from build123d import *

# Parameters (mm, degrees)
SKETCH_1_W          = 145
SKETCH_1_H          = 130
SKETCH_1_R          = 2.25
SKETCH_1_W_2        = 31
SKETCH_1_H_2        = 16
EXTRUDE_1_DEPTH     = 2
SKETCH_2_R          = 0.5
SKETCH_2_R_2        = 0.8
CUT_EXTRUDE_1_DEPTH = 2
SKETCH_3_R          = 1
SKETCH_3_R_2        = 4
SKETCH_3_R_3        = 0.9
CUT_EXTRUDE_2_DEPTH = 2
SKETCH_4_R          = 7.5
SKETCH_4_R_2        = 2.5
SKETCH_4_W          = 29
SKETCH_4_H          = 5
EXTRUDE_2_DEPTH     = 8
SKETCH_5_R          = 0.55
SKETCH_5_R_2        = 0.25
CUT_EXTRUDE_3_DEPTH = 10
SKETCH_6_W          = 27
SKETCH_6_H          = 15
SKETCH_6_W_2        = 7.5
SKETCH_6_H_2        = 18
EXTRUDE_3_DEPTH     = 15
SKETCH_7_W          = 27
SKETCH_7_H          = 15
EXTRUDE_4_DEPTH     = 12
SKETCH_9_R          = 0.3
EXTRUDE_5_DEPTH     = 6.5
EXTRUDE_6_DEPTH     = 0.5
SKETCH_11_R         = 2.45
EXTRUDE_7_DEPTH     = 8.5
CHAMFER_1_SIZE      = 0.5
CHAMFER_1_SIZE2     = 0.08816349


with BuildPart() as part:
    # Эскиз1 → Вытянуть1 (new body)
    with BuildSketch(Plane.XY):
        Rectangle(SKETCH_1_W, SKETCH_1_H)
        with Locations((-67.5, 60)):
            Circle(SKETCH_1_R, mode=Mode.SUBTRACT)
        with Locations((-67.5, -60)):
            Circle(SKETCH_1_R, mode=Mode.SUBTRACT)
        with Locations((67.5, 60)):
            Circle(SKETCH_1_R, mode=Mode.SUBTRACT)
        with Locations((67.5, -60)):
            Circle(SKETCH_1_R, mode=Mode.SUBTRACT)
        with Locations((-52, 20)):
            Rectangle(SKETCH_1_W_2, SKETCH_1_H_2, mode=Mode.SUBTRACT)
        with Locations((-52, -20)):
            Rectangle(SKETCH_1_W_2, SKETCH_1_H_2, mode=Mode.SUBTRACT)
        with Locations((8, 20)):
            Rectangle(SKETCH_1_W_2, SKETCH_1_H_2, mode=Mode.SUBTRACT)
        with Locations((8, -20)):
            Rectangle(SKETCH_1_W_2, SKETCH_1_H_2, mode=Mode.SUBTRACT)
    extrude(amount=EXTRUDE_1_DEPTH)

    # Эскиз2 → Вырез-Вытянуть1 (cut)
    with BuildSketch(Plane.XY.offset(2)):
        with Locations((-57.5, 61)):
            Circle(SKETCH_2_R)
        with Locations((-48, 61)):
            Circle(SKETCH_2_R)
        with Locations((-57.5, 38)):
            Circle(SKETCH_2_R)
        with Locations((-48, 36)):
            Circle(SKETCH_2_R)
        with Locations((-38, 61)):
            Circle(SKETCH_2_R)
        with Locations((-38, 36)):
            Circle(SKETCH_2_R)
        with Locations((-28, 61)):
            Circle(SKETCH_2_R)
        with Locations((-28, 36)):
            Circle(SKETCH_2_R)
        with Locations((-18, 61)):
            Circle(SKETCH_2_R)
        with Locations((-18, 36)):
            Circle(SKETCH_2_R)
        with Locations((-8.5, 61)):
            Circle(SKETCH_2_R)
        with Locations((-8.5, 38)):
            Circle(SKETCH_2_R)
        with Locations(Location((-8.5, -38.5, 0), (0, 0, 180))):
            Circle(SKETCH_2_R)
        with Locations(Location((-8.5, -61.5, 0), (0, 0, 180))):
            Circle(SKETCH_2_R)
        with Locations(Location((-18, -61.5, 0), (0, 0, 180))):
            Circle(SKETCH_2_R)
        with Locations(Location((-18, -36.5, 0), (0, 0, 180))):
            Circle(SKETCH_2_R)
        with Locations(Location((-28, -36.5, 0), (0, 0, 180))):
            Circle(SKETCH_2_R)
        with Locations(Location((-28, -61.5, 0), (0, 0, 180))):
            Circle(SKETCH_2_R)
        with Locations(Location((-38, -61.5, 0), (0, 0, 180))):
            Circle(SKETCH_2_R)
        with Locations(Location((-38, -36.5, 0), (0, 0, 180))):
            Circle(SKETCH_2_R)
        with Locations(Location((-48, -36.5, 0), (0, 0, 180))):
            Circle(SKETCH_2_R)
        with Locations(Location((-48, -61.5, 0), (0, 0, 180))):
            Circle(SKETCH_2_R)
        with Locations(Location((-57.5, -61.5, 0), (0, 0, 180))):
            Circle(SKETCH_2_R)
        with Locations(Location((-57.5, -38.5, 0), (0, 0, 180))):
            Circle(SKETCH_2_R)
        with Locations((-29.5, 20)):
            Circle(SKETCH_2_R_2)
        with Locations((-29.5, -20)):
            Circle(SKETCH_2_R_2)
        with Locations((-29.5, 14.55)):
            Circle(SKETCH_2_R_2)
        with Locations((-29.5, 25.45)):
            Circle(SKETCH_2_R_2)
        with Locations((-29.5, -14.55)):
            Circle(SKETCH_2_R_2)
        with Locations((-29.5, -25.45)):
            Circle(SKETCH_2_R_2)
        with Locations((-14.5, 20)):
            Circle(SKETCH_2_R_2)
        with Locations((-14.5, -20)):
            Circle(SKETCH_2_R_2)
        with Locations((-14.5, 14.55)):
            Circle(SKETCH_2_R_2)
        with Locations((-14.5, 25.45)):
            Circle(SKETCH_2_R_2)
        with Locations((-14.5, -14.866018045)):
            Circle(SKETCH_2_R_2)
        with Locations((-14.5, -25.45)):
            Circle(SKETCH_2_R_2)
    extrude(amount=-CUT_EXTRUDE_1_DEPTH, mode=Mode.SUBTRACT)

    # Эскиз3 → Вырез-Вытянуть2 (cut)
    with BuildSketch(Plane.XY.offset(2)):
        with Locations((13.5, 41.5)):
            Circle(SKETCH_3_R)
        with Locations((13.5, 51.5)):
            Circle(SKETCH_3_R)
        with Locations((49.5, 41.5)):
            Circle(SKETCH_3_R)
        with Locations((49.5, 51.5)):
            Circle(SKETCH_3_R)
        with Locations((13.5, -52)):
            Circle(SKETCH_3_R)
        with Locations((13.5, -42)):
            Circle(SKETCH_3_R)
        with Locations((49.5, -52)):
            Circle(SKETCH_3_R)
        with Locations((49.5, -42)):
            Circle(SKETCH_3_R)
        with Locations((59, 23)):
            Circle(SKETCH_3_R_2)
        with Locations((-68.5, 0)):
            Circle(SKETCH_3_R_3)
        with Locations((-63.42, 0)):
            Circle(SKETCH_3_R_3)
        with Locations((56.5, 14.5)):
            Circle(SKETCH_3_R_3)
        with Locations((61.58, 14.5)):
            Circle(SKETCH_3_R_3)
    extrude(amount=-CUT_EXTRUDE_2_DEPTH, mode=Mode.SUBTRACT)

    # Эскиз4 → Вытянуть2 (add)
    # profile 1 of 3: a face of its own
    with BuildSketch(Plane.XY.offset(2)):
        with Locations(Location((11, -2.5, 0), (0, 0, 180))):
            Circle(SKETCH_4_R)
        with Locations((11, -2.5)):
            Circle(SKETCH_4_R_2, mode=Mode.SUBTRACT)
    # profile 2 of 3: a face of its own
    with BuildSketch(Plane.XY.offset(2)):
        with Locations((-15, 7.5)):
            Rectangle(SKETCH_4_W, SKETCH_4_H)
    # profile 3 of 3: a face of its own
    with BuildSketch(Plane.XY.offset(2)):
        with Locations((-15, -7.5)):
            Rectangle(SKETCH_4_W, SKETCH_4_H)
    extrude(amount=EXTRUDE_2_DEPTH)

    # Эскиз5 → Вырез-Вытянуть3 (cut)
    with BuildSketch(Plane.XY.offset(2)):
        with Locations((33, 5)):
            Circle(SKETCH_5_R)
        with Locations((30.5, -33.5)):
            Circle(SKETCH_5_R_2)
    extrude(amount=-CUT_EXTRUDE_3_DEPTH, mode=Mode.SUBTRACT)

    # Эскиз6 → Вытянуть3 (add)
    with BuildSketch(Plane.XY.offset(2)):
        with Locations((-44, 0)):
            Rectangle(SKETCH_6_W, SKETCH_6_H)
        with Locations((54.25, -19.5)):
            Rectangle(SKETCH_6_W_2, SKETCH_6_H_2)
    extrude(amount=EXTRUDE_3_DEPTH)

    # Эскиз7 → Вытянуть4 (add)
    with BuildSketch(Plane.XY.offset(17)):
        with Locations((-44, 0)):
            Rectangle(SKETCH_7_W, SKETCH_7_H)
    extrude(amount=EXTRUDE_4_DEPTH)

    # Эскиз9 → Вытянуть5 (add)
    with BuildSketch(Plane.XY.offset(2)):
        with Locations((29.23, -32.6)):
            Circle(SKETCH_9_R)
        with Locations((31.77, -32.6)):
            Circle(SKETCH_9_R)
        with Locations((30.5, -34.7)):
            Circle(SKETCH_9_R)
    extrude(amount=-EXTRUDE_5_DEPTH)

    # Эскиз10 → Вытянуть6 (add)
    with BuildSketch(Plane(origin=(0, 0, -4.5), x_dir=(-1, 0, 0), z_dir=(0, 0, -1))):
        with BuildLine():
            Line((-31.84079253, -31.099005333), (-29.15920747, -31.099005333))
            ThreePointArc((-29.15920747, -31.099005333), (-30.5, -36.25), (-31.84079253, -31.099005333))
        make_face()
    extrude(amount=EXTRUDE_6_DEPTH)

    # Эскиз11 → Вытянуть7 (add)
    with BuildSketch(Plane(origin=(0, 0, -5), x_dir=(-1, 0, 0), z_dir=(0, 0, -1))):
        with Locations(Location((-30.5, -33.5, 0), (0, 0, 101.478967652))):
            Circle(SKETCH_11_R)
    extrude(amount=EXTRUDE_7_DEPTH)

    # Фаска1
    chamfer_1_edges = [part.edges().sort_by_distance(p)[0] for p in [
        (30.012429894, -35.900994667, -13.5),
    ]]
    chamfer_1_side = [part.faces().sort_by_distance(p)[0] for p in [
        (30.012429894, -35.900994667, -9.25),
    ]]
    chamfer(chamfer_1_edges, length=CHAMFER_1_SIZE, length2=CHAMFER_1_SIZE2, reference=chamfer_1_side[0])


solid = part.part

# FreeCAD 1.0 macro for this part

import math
import FreeCAD as App
import Part
import Sketcher
from FreeCAD import Vector
Q = App.Units.Quantity


def edges_at(feature, points):
    """Names of the edges that pass closest to the given points."""
    edges = feature.Shape.Edges
    near = lambda p: min(range(len(edges)), key=lambda i: edges[i].distToShape(Part.Vertex(*p))[0])
    return sorted({f"Edge{near(p) + 1}" for p in points})


def add_polygon(sketch, points):
    """Adds a closed chain of lines whose ends are joined by coincident constraints."""
    first, n = sketch.GeometryCount, len(points)
    for a, b in zip(points, points[1:] + points[:1]):
        sketch.addGeometry(Part.LineSegment(App.Vector(*a, 0), App.Vector(*b, 0)), False)
    for i in range(n):
        sketch.addConstraint(Sketcher.Constraint("Coincident", first + i, 2, first + (i + 1) % n, 1))

doc = App.newDocument("Part")
body = doc.addObject("PartDesign::Body", "Body")

# Sketch on XY plane
sketch1 = doc.addObject("Sketcher::SketchObject", "Sketch")
body.addObject(sketch1)
sketch1.AttachmentSupport = (doc.XY_Plane, [""])
sketch1.MapMode = "FlatFace"
add_polygon(sketch1, [(-72.5, 65), (-72.5, -65), (72.5, -65), (72.5, 65)])  # lines 0-3
sketch1.addGeometry(Part.Circle(Vector(-67.5, -60, 0), Vector(0, 0, 1), 2.2), False)  # 4
add_polygon(sketch1, [(-36.5, -28), (-67.5, -28), (-67.5, -12), (-36.5, -12)])  # lines 5-8
sketch1.addGeometry(Part.Circle(Vector(67.5, -60, 0), Vector(0, 0, 1), 2.2), False)  # 9
add_polygon(sketch1, [(23.5, -28), (-7.5, -28), (-7.5, -12), (23.5, -12)])  # lines 10-13
add_polygon(sketch1, [(-36.5, 12), (-67.5, 12), (-67.5, 28), (-36.5, 28)])  # lines 14-17
sketch1.addGeometry(Part.Circle(Vector(-67.5, 60, 0), Vector(0, 0, 1), 2.2), False)  # 18
add_polygon(sketch1, [(23.5, 12), (-7.5, 12), (-7.5, 28), (23.5, 28)])  # lines 19-22
sketch1.addGeometry(Part.Circle(Vector(67.5, 60, 0), Vector(0, 0, 1), 2.2), False)  # 23
sketch1.addConstraint(Sketcher.Constraint("Vertical", 0))
sketch1.addConstraint(Sketcher.Constraint("Horizontal", 1))
sketch1.addConstraint(Sketcher.Constraint("Vertical", 2))
sketch1.addConstraint(Sketcher.Constraint("Horizontal", 3))
sketch1.addConstraint(Sketcher.Constraint("Horizontal", 5))
sketch1.addConstraint(Sketcher.Constraint("Vertical", 6))
sketch1.addConstraint(Sketcher.Constraint("Horizontal", 7))
sketch1.addConstraint(Sketcher.Constraint("Vertical", 8))
sketch1.addConstraint(Sketcher.Constraint("Horizontal", 10))
sketch1.addConstraint(Sketcher.Constraint("Vertical", 11))
sketch1.addConstraint(Sketcher.Constraint("Horizontal", 12))
sketch1.addConstraint(Sketcher.Constraint("Vertical", 13))
sketch1.addConstraint(Sketcher.Constraint("Horizontal", 14))
sketch1.addConstraint(Sketcher.Constraint("Vertical", 15))
sketch1.addConstraint(Sketcher.Constraint("Horizontal", 16))
sketch1.addConstraint(Sketcher.Constraint("Vertical", 17))
sketch1.addConstraint(Sketcher.Constraint("Horizontal", 19))
sketch1.addConstraint(Sketcher.Constraint("Vertical", 20))
sketch1.addConstraint(Sketcher.Constraint("Horizontal", 21))
sketch1.addConstraint(Sketcher.Constraint("Vertical", 22))
sketch1.addConstraint(Sketcher.Constraint("Equal", 4, 9))
sketch1.addConstraint(Sketcher.Constraint("Equal", 9, 18))
sketch1.addConstraint(Sketcher.Constraint("Equal", 18, 23))
sketch1.addConstraint(Sketcher.Constraint("Symmetric", 9, 3, 18, 3, -1, 1))
sketch1.addConstraint(Sketcher.Constraint("Symmetric", 4, 3, 23, 3, -1, 1))
sketch1.addConstraint(Sketcher.Constraint("Symmetric", 0, 2, 2, 2, -1, 1))
sketch1.addConstraint(Sketcher.Constraint("Symmetric", 4, 3, 9, 3, -2))
sketch1.addConstraint(Sketcher.Constraint("Symmetric", 6, 2, 14, 2, -1))
sketch1.addConstraint(Sketcher.Constraint("Symmetric", 8, 2, 16, 2, -1))
sketch1.addConstraint(Sketcher.Constraint("Symmetric", 11, 2, 19, 2, -1))
sketch1.addConstraint(Sketcher.Constraint("Symmetric", 13, 2, 21, 2, -1))
sketch1.addConstraint(Sketcher.Constraint("Horizontal", 8, 2, 10, 2))
sketch1.addConstraint(Sketcher.Constraint("Horizontal", 7, 2, 11, 2))
sketch1.addConstraint(Sketcher.Constraint("Vertical", 18, 3, 5, 2))
sketch1.addConstraint(Sketcher.Constraint("Equal", 7, 10))
sketch1.addConstraint(Sketcher.Constraint("Diameter", 4, Q("4.5 mm")))
sketch1.addConstraint(Sketcher.Constraint("DistanceX", 1, 1, 1, 2, Q("145 mm")))
sketch1.addConstraint(Sketcher.Constraint("DistanceX", 5, 2, 5, 1, Q("31 mm")))
sketch1.addConstraint(Sketcher.Constraint("DistanceY", 0, 2, 0, 1, Q("130 mm")))
sketch1.addConstraint(Sketcher.Constraint("DistanceY", 6, 1, 6, 2, Q("16 mm")))
sketch1.addConstraint(Sketcher.Constraint("DistanceY", 4, 3, -1, 1, Q("60 mm")))
sketch1.addConstraint(Sketcher.Constraint("DistanceY", 5, 2, -1, 1, Q("28 mm")))
sketch1.addConstraint(Sketcher.Constraint("DistanceX", 4, 3, 9, 3, Q("135 mm")))
sketch1.addConstraint(Sketcher.Constraint("DistanceX", 8, 2, 10, 2, Q("29 mm")))
pad1 = doc.addObject("PartDesign::Pad", "Pad")
body.addObject(pad1)
pad1.Profile = sketch1
pad1.Length = 2

# Sketch on XY plane
sketch2 = doc.addObject("Sketcher::SketchObject", "Sketch001")
body.addObject(sketch2)
sketch2.AttachmentSupport = (doc.XY_Plane, [""])
sketch2.MapMode = "FlatFace"
sketch2.AttachmentOffset = App.Placement(Vector(0, 0, 2), App.Rotation())
sketch2.addGeometry(Part.Circle(Vector(-57.5, 61, 0), Vector(0, 0, 1), 0.5), False)
sketch2.addGeometry(Part.Circle(Vector(-48, 61, 0), Vector(0, 0, 1), 0.5), False)
sketch2.addGeometry(Part.Circle(Vector(-57.5, 38, 0), Vector(0, 0, 1), 0.5), False)
sketch2.addGeometry(Part.Circle(Vector(-48, 36, 0), Vector(0, 0, 1), 0.5), False)
sketch2.addGeometry(Part.Circle(Vector(-38, 61, 0), Vector(0, 0, 1), 0.5), False)
sketch2.addGeometry(Part.Circle(Vector(-38, 36, 0), Vector(0, 0, 1), 0.5), False)
sketch2.addGeometry(Part.Circle(Vector(-28, 61, 0), Vector(0, 0, 1), 0.5), False)
sketch2.addGeometry(Part.Circle(Vector(-28, 36, 0), Vector(0, 0, 1), 0.5), False)
sketch2.addGeometry(Part.Circle(Vector(-18, 61, 0), Vector(0, 0, 1), 0.5), False)
sketch2.addGeometry(Part.Circle(Vector(-18, 36, 0), Vector(0, 0, 1), 0.5), False)
sketch2.addGeometry(Part.Circle(Vector(-8.5, 61, 0), Vector(0, 0, 1), 0.5), False)
sketch2.addGeometry(Part.Circle(Vector(-8.5, 38, 0), Vector(0, 0, 1), 0.5), False)
sketch2.addGeometry(Part.Circle(Vector(-8.5, -38.5, 0), Vector(0, 0, 1), 0.5), False)
sketch2.addGeometry(Part.Circle(Vector(-8.5, -61.5, 0), Vector(0, 0, 1), 0.5), False)
sketch2.addGeometry(Part.Circle(Vector(-18, -61.5, 0), Vector(0, 0, 1), 0.5), False)
sketch2.addGeometry(Part.Circle(Vector(-18, -36.5, 0), Vector(0, 0, 1), 0.5), False)
sketch2.addGeometry(Part.Circle(Vector(-28, -36.5, 0), Vector(0, 0, 1), 0.5), False)
sketch2.addGeometry(Part.Circle(Vector(-28, -61.5, 0), Vector(0, 0, 1), 0.5), False)
sketch2.addGeometry(Part.Circle(Vector(-38, -61.5, 0), Vector(0, 0, 1), 0.5), False)
sketch2.addGeometry(Part.Circle(Vector(-38, -36.5, 0), Vector(0, 0, 1), 0.5), False)
sketch2.addGeometry(Part.Circle(Vector(-48, -36.5, 0), Vector(0, 0, 1), 0.5), False)
sketch2.addGeometry(Part.Circle(Vector(-48, -61.5, 0), Vector(0, 0, 1), 0.5), False)
sketch2.addGeometry(Part.Circle(Vector(-57.5, -61.5, 0), Vector(0, 0, 1), 0.5), False)
sketch2.addGeometry(Part.Circle(Vector(-57.5, -38.5, 0), Vector(0, 0, 1), 0.5), False)
sketch2.addGeometry(Part.Circle(Vector(-29.5, 20, 0), Vector(0, 0, 1), 0.8), False)
sketch2.addGeometry(Part.Circle(Vector(-29.5, -20, 0), Vector(0, 0, 1), 0.8), False)
sketch2.addGeometry(Part.Circle(Vector(-29.5, 14.6, 0), Vector(0, 0, 1), 0.8), False)
sketch2.addGeometry(Part.Circle(Vector(-29.5, 25.4, 0), Vector(0, 0, 1), 0.8), False)
sketch2.addGeometry(Part.Circle(Vector(-29.5, -14.6, 0), Vector(0, 0, 1), 0.8), False)
sketch2.addGeometry(Part.Circle(Vector(-29.5, -25.4, 0), Vector(0, 0, 1), 0.8), False)
sketch2.addGeometry(Part.Circle(Vector(-14.5, 20, 0), Vector(0, 0, 1), 0.8), False)
sketch2.addGeometry(Part.Circle(Vector(-14.5, -20, 0), Vector(0, 0, 1), 0.8), False)
sketch2.addGeometry(Part.Circle(Vector(-14.5, 14.6, 0), Vector(0, 0, 1), 0.8), False)
sketch2.addGeometry(Part.Circle(Vector(-14.5, 25.4, 0), Vector(0, 0, 1), 0.8), False)
sketch2.addGeometry(Part.Circle(Vector(-14.5, -14.9, 0), Vector(0, 0, 1), 0.8), False)
sketch2.addGeometry(Part.Circle(Vector(-14.5, -25.4, 0), Vector(0, 0, 1), 0.8), False)
sketch2.addConstraint(Sketcher.Constraint("Equal", 0, 1))
sketch2.addConstraint(Sketcher.Constraint("Equal", 1, 2))
sketch2.addConstraint(Sketcher.Constraint("Equal", 2, 3))
sketch2.addConstraint(Sketcher.Constraint("Equal", 3, 4))
sketch2.addConstraint(Sketcher.Constraint("Equal", 4, 5))
sketch2.addConstraint(Sketcher.Constraint("Equal", 5, 6))
sketch2.addConstraint(Sketcher.Constraint("Equal", 6, 7))
sketch2.addConstraint(Sketcher.Constraint("Equal", 7, 8))
sketch2.addConstraint(Sketcher.Constraint("Equal", 8, 9))
sketch2.addConstraint(Sketcher.Constraint("Equal", 9, 10))
sketch2.addConstraint(Sketcher.Constraint("Equal", 10, 11))
sketch2.addConstraint(Sketcher.Constraint("Equal", 11, 12))
sketch2.addConstraint(Sketcher.Constraint("Equal", 12, 13))
sketch2.addConstraint(Sketcher.Constraint("Equal", 13, 14))
sketch2.addConstraint(Sketcher.Constraint("Equal", 14, 15))
sketch2.addConstraint(Sketcher.Constraint("Equal", 15, 16))
sketch2.addConstraint(Sketcher.Constraint("Equal", 16, 17))
sketch2.addConstraint(Sketcher.Constraint("Equal", 17, 18))
sketch2.addConstraint(Sketcher.Constraint("Equal", 18, 19))
sketch2.addConstraint(Sketcher.Constraint("Equal", 19, 20))
sketch2.addConstraint(Sketcher.Constraint("Equal", 20, 21))
sketch2.addConstraint(Sketcher.Constraint("Equal", 21, 22))
sketch2.addConstraint(Sketcher.Constraint("Equal", 22, 23))
sketch2.addConstraint(Sketcher.Constraint("Equal", 24, 25))
sketch2.addConstraint(Sketcher.Constraint("Equal", 25, 26))
sketch2.addConstraint(Sketcher.Constraint("Equal", 26, 27))
sketch2.addConstraint(Sketcher.Constraint("Equal", 27, 28))
sketch2.addConstraint(Sketcher.Constraint("Equal", 28, 29))
sketch2.addConstraint(Sketcher.Constraint("Equal", 29, 30))
sketch2.addConstraint(Sketcher.Constraint("Equal", 30, 31))
sketch2.addConstraint(Sketcher.Constraint("Equal", 31, 32))
sketch2.addConstraint(Sketcher.Constraint("Equal", 32, 33))
sketch2.addConstraint(Sketcher.Constraint("Equal", 33, 34))
sketch2.addConstraint(Sketcher.Constraint("Equal", 34, 35))
sketch2.addConstraint(Sketcher.Constraint("Symmetric", 24, 3, 25, 3, -1))
sketch2.addConstraint(Sketcher.Constraint("Symmetric", 26, 3, 28, 3, -1))
sketch2.addConstraint(Sketcher.Constraint("Symmetric", 27, 3, 29, 3, -1))
sketch2.addConstraint(Sketcher.Constraint("Symmetric", 30, 3, 31, 3, -1))
sketch2.addConstraint(Sketcher.Constraint("Symmetric", 33, 3, 35, 3, -1))
sketch2.addConstraint(Sketcher.Constraint("Horizontal", 0, 3, 1, 3))
sketch2.addConstraint(Sketcher.Constraint("Horizontal", 1, 3, 4, 3))
sketch2.addConstraint(Sketcher.Constraint("Horizontal", 3, 3, 5, 3))
sketch2.addConstraint(Sketcher.Constraint("Horizontal", 4, 3, 6, 3))
sketch2.addConstraint(Sketcher.Constraint("Horizontal", 5, 3, 7, 3))
sketch2.addConstraint(Sketcher.Constraint("Horizontal", 6, 3, 8, 3))
sketch2.addConstraint(Sketcher.Constraint("Horizontal", 7, 3, 9, 3))
sketch2.addConstraint(Sketcher.Constraint("Horizontal", 8, 3, 10, 3))
sketch2.addConstraint(Sketcher.Constraint("Horizontal", 2, 3, 11, 3))
sketch2.addConstraint(Sketcher.Constraint("Horizontal", 13, 3, 14, 3))
sketch2.addConstraint(Sketcher.Constraint("Horizontal", 15, 3, 16, 3))
sketch2.addConstraint(Sketcher.Constraint("Horizontal", 14, 3, 17, 3))
sketch2.addConstraint(Sketcher.Constraint("Horizontal", 17, 3, 18, 3))
sketch2.addConstraint(Sketcher.Constraint("Horizontal", 16, 3, 19, 3))
sketch2.addConstraint(Sketcher.Constraint("Horizontal", 19, 3, 20, 3))
sketch2.addConstraint(Sketcher.Constraint("Horizontal", 18, 3, 21, 3))
sketch2.addConstraint(Sketcher.Constraint("Horizontal", 21, 3, 22, 3))
sketch2.addConstraint(Sketcher.Constraint("Horizontal", 12, 3, 23, 3))
sketch2.addConstraint(Sketcher.Constraint("Horizontal", 24, 3, 30, 3))
sketch2.addConstraint(Sketcher.Constraint("Horizontal", 26, 3, 32, 3))
sketch2.addConstraint(Sketcher.Constraint("Horizontal", 27, 3, 33, 3))
sketch2.addConstraint(Sketcher.Constraint("Vertical", 0, 3, 2, 3))
sketch2.addConstraint(Sketcher.Constraint("Vertical", 1, 3, 3, 3))
sketch2.addConstraint(Sketcher.Constraint("Vertical", 4, 3, 5, 3))
sketch2.addConstraint(Sketcher.Constraint("Vertical", 6, 3, 7, 3))
sketch2.addConstraint(Sketcher.Constraint("Vertical", 8, 3, 9, 3))
sketch2.addConstraint(Sketcher.Constraint("Vertical", 10, 3, 11, 3))
sketch2.addConstraint(Sketcher.Constraint("Vertical", 11, 3, 12, 3))
sketch2.addConstraint(Sketcher.Constraint("Vertical", 12, 3, 13, 3))
sketch2.addConstraint(Sketcher.Constraint("Vertical", 9, 3, 14, 3))
sketch2.addConstraint(Sketcher.Constraint("Vertical", 14, 3, 15, 3))
sketch2.addConstraint(Sketcher.Constraint("Vertical", 7, 3, 16, 3))
sketch2.addConstraint(Sketcher.Constraint("Vertical", 16, 3, 17, 3))
sketch2.addConstraint(Sketcher.Constraint("Vertical", 5, 3, 18, 3))
sketch2.addConstraint(Sketcher.Constraint("Vertical", 18, 3, 19, 3))
sketch2.addConstraint(Sketcher.Constraint("Vertical", 3, 3, 20, 3))
sketch2.addConstraint(Sketcher.Constraint("Vertical", 20, 3, 21, 3))
sketch2.addConstraint(Sketcher.Constraint("Vertical", 2, 3, 22, 3))
sketch2.addConstraint(Sketcher.Constraint("Vertical", 22, 3, 23, 3))
sketch2.addConstraint(Sketcher.Constraint("Vertical", 25, 3, 26, 3))
sketch2.addConstraint(Sketcher.Constraint("Vertical", 26, 3, 27, 3))
sketch2.addConstraint(Sketcher.Constraint("Vertical", 31, 3, 32, 3))
sketch2.addConstraint(Sketcher.Constraint("Vertical", 32, 3, 33, 3))
sketch2.addConstraint(Sketcher.Constraint("Vertical", 33, 3, 34, 3))
sketch2.addConstraint(Sketcher.Constraint("Diameter", 0, Q("1 mm")))
sketch2.addConstraint(Sketcher.Constraint("Diameter", 24, Q("1.6 mm")))
sketch2.addConstraint(Sketcher.Constraint("DistanceY", -1, 1, 0, 3, Q("61 mm")))
sketch2.addConstraint(Sketcher.Constraint("DistanceX", 1, 3, -1, 1, Q("48 mm")))
sketch2.addConstraint(Sketcher.Constraint("DistanceY", -1, 1, 2, 3, Q("38 mm")))
sketch2.addConstraint(Sketcher.Constraint("DistanceY", -1, 1, 3, 3, Q("36 mm")))
sketch2.addConstraint(Sketcher.Constraint("DistanceX", 4, 3, -1, 1, Q("38 mm")))
sketch2.addConstraint(Sketcher.Constraint("DistanceX", 6, 3, -1, 1, Q("28 mm")))
sketch2.addConstraint(Sketcher.Constraint("DistanceX", 8, 3, -1, 1, Q("18 mm")))
sketch2.addConstraint(Sketcher.Constraint("DistanceY", -1, 1, 24, 3, Q("20 mm")))
sketch2.addConstraint(Sketcher.Constraint("DistanceY", 13, 3, 12, 3, Q("23 mm")))
sketch2.addConstraint(Sketcher.Constraint("DistanceY", 12, 3, 15, 3, Q("2 mm")))
sketch2.addConstraint(Sketcher.Constraint("DistanceX", 24, 3, 11, 3, Q("21 mm")))
sketch2.addConstraint(Sketcher.Constraint("DistanceX", 24, 3, 30, 3, Q("15 mm")))
sketch2.addConstraint(Sketcher.Constraint("DistanceX", 0, 3, -1, 1, Q("57.5 mm")))
sketch2.addConstraint(Sketcher.Constraint("DistanceX", 10, 3, -1, 1, Q("8.5 mm")))
sketch2.addConstraint(Sketcher.Constraint("DistanceY", 12, 3, -1, 1, Q("38.5 mm")))
sketch2.addConstraint(Sketcher.Constraint("DistanceY", 26, 3, 27, 3, Q("10.9 mm")))
sketch2.addConstraint(Sketcher.Constraint("DistanceY", -1, 1, 26, 3, Q("14.55 mm")))
sketch2.addConstraint(Sketcher.Constraint("DistanceY", 34, 3, -1, 1, Q("14.866018 mm")))
pocket1 = doc.addObject("PartDesign::Pocket", "Pocket")
body.addObject(pocket1)
pocket1.Profile = sketch2
pocket1.Length = 2

# Sketch on XY plane
sketch3 = doc.addObject("Sketcher::SketchObject", "Sketch002")
body.addObject(sketch3)
sketch3.AttachmentSupport = (doc.XY_Plane, [""])
sketch3.MapMode = "FlatFace"
sketch3.AttachmentOffset = App.Placement(Vector(0, 0, 2), App.Rotation())
sketch3.addGeometry(Part.Circle(Vector(13.5, 41.5, 0), Vector(0, 0, 1), 1), False)
sketch3.addGeometry(Part.Circle(Vector(13.5, 51.5, 0), Vector(0, 0, 1), 1), False)
sketch3.addGeometry(Part.Circle(Vector(49.5, 41.5, 0), Vector(0, 0, 1), 1), False)
sketch3.addGeometry(Part.Circle(Vector(49.5, 51.5, 0), Vector(0, 0, 1), 1), False)
sketch3.addGeometry(Part.Circle(Vector(13.5, -52, 0), Vector(0, 0, 1), 1), False)
sketch3.addGeometry(Part.Circle(Vector(13.5, -42, 0), Vector(0, 0, 1), 1), False)
sketch3.addGeometry(Part.Circle(Vector(49.5, -52, 0), Vector(0, 0, 1), 1), False)
sketch3.addGeometry(Part.Circle(Vector(49.5, -42, 0), Vector(0, 0, 1), 1), False)
sketch3.addGeometry(Part.Circle(Vector(59, 23, 0), Vector(0, 0, 1), 4), False)
sketch3.addGeometry(Part.Circle(Vector(-68.5, 0, 0), Vector(0, 0, 1), 0.9), False)
sketch3.addGeometry(Part.Circle(Vector(-63.4, 0, 0), Vector(0, 0, 1), 0.9), False)
sketch3.addGeometry(Part.Circle(Vector(56.5, 14.5, 0), Vector(0, 0, 1), 0.9), False)
sketch3.addGeometry(Part.Circle(Vector(61.6, 14.5, 0), Vector(0, 0, 1), 0.9), False)
sketch3.addConstraint(Sketcher.Constraint("Equal", 0, 1))
sketch3.addConstraint(Sketcher.Constraint("Equal", 1, 2))
sketch3.addConstraint(Sketcher.Constraint("Equal", 2, 3))
sketch3.addConstraint(Sketcher.Constraint("Equal", 3, 4))
sketch3.addConstraint(Sketcher.Constraint("Equal", 4, 5))
sketch3.addConstraint(Sketcher.Constraint("Equal", 5, 6))
sketch3.addConstraint(Sketcher.Constraint("Equal", 6, 7))
sketch3.addConstraint(Sketcher.Constraint("Equal", 9, 10))
sketch3.addConstraint(Sketcher.Constraint("Equal", 10, 11))
sketch3.addConstraint(Sketcher.Constraint("Equal", 11, 12))
sketch3.addConstraint(Sketcher.Constraint("PointOnObject", 9, 3, -1))
sketch3.addConstraint(Sketcher.Constraint("PointOnObject", 10, 3, -1))
sketch3.addConstraint(Sketcher.Constraint("Horizontal", 0, 3, 2, 3))
sketch3.addConstraint(Sketcher.Constraint("Horizontal", 1, 3, 3, 3))
sketch3.addConstraint(Sketcher.Constraint("Horizontal", 4, 3, 6, 3))
sketch3.addConstraint(Sketcher.Constraint("Horizontal", 5, 3, 7, 3))
sketch3.addConstraint(Sketcher.Constraint("Horizontal", 11, 3, 12, 3))
sketch3.addConstraint(Sketcher.Constraint("Vertical", 0, 3, 1, 3))
sketch3.addConstraint(Sketcher.Constraint("Vertical", 2, 3, 3, 3))
sketch3.addConstraint(Sketcher.Constraint("Vertical", 1, 3, 4, 3))
sketch3.addConstraint(Sketcher.Constraint("Vertical", 4, 3, 5, 3))
sketch3.addConstraint(Sketcher.Constraint("Vertical", 3, 3, 6, 3))
sketch3.addConstraint(Sketcher.Constraint("Vertical", 6, 3, 7, 3))
sketch3.addConstraint(Sketcher.Constraint("Diameter", 0, Q("2 mm")))
sketch3.addConstraint(Sketcher.Constraint("Diameter", 8, Q("8 mm")))
sketch3.addConstraint(Sketcher.Constraint("Diameter", 9, Q("1.8 mm")))
sketch3.addConstraint(Sketcher.Constraint("DistanceY", 4, 3, -1, 1, Q("52 mm")))
sketch3.addConstraint(Sketcher.Constraint("DistanceY", 5, 3, -1, 1, Q("42 mm")))
sketch3.addConstraint(Sketcher.Constraint("DistanceX", -1, 1, 8, 3, Q("59 mm")))
sketch3.addConstraint(Sketcher.Constraint("DistanceY", -1, 1, 8, 3, Q("23 mm")))
sketch3.addConstraint(Sketcher.Constraint("DistanceY", 0, 3, 1, 3, Q("10 mm")))
sketch3.addConstraint(Sketcher.Constraint("DistanceX", 0, 3, 2, 3, Q("36 mm")))
sketch3.addConstraint(Sketcher.Constraint("DistanceX", 9, 3, 0, 3, Q("82 mm")))
sketch3.addConstraint(Sketcher.Constraint("DistanceX", 2, 3, 11, 3, Q("7 mm")))
sketch3.addConstraint(Sketcher.Constraint("DistanceY", 11, 3, 2, 3, Q("27 mm")))
sketch3.addConstraint(Sketcher.Constraint("DistanceX", -1, 1, 0, 3, Q("13.5 mm")))
sketch3.addConstraint(Sketcher.Constraint("DistanceY", -1, 1, 0, 3, Q("41.5 mm")))
sketch3.addConstraint(Sketcher.Constraint("DistanceX", 10, 3, -1, 1, Q("63.42 mm")))
sketch3.addConstraint(Sketcher.Constraint("DistanceX", -1, 1, 12, 3, Q("61.58 mm")))
pocket2 = doc.addObject("PartDesign::Pocket", "Pocket001")
body.addObject(pocket2)
pocket2.Profile = sketch3
pocket2.Length = 2

# Sketch on XY plane
sketch4 = doc.addObject("Sketcher::SketchObject", "Sketch003")
body.addObject(sketch4)
sketch4.AttachmentSupport = (doc.XY_Plane, [""])
sketch4.MapMode = "FlatFace"
sketch4.AttachmentOffset = App.Placement(Vector(0, 0, 2), App.Rotation())
sketch4.addGeometry(Part.Circle(Vector(11, -2.5, 0), Vector(0, 0, 1), 7.5), False)  # 0
sketch4.addGeometry(Part.Circle(Vector(11, -2.5, 0), Vector(0, 0, 1), 2.5), False)  # 1
add_polygon(sketch4, [(-29.5, 10), (-29.5, 5), (-0.5, 5), (-0.5, 10)])  # lines 2-5
add_polygon(sketch4, [(-29.5, -5), (-29.5, -10), (-0.5, -10), (-0.5, -5)])  # lines 6-9
sketch4.addConstraint(Sketcher.Constraint("Vertical", 2))
sketch4.addConstraint(Sketcher.Constraint("Horizontal", 3))
sketch4.addConstraint(Sketcher.Constraint("Vertical", 4))
sketch4.addConstraint(Sketcher.Constraint("Horizontal", 5))
sketch4.addConstraint(Sketcher.Constraint("Vertical", 6))
sketch4.addConstraint(Sketcher.Constraint("Horizontal", 7))
sketch4.addConstraint(Sketcher.Constraint("Vertical", 8))
sketch4.addConstraint(Sketcher.Constraint("Horizontal", 9))
sketch4.addConstraint(Sketcher.Constraint("Coincident", 1, 3, 0, 3))
sketch4.addConstraint(Sketcher.Constraint("Symmetric", 5, 2, 6, 2, -1))
sketch4.addConstraint(Sketcher.Constraint("Symmetric", 3, 2, 8, 2, -1))
sketch4.addConstraint(Sketcher.Constraint("Diameter", 0, Q("15 mm")))
sketch4.addConstraint(Sketcher.Constraint("Diameter", 1, Q("5 mm")))
sketch4.addConstraint(Sketcher.Constraint("DistanceX", 3, 1, 3, 2, Q("29 mm")))
sketch4.addConstraint(Sketcher.Constraint("DistanceY", 2, 2, 2, 1, Q("5 mm")))
sketch4.addConstraint(Sketcher.Constraint("DistanceX", -1, 1, 0, 3, Q("11 mm")))
sketch4.addConstraint(Sketcher.Constraint("DistanceY", -1, 1, 2, 2, Q("5 mm")))
sketch4.addConstraint(Sketcher.Constraint("DistanceY", 0, 3, -1, 1, Q("2.5 mm")))
sketch4.addConstraint(Sketcher.Constraint("DistanceX", 2, 2, -1, 1, Q("29.5 mm")))
pad2 = doc.addObject("PartDesign::Pad", "Pad001")
body.addObject(pad2)
pad2.Profile = sketch4
pad2.Length = 8

# Sketch on XY plane
sketch5 = doc.addObject("Sketcher::SketchObject", "Sketch004")
body.addObject(sketch5)
sketch5.AttachmentSupport = (doc.XY_Plane, [""])
sketch5.MapMode = "FlatFace"
sketch5.AttachmentOffset = App.Placement(Vector(0, 0, 2), App.Rotation())
sketch5.addGeometry(Part.Circle(Vector(33, 5, 0), Vector(0, 0, 1), 0.55), False)
sketch5.addGeometry(Part.Circle(Vector(30.5, -33.5, 0), Vector(0, 0, 1), 0.25), False)
sketch5.addConstraint(Sketcher.Constraint("Diameter", 0, Q("1.1 mm")))
sketch5.addConstraint(Sketcher.Constraint("Diameter", 1, Q("0.5 mm")))
sketch5.addConstraint(Sketcher.Constraint("DistanceX", -1, 1, 0, 3, Q("33 mm")))
sketch5.addConstraint(Sketcher.Constraint("DistanceY", -1, 1, 0, 3, Q("5 mm")))
sketch5.addConstraint(Sketcher.Constraint("DistanceX", -1, 1, 1, 3, Q("30.5 mm")))
sketch5.addConstraint(Sketcher.Constraint("DistanceY", 1, 3, -1, 1, Q("33.5 mm")))
pocket3 = doc.addObject("PartDesign::Pocket", "Pocket002")
body.addObject(pocket3)
pocket3.Profile = sketch5
pocket3.Length = 10

# Sketch on XY plane
sketch6 = doc.addObject("Sketcher::SketchObject", "Sketch005")
body.addObject(sketch6)
sketch6.AttachmentSupport = (doc.XY_Plane, [""])
sketch6.MapMode = "FlatFace"
sketch6.AttachmentOffset = App.Placement(Vector(0, 0, 2), App.Rotation())
add_polygon(sketch6, [(-58, 8), (-58, -8), (-30, -8), (-30, 8)])  # lines 0-3
add_polygon(sketch6, [(50, -10), (50, -28), (58, -28), (58, -10)])  # lines 4-7
sketch6.addConstraint(Sketcher.Constraint("Vertical", 0))
sketch6.addConstraint(Sketcher.Constraint("Horizontal", 1))
sketch6.addConstraint(Sketcher.Constraint("Vertical", 2))
sketch6.addConstraint(Sketcher.Constraint("Horizontal", 3))
sketch6.addConstraint(Sketcher.Constraint("Vertical", 4))
sketch6.addConstraint(Sketcher.Constraint("Horizontal", 5))
sketch6.addConstraint(Sketcher.Constraint("Vertical", 6))
sketch6.addConstraint(Sketcher.Constraint("Horizontal", 7))
sketch6.addConstraint(Sketcher.Constraint("DistanceX", 1, 1, 1, 2, Q("27 mm")))
sketch6.addConstraint(Sketcher.Constraint("DistanceY", 0, 2, 0, 1, Q("15 mm")))
sketch6.addConstraint(Sketcher.Constraint("DistanceY", 4, 2, 4, 1, Q("18 mm")))
sketch6.addConstraint(Sketcher.Constraint("DistanceX", 5, 1, 5, 2, Q("7.5 mm")))
sketch6.addConstraint(Sketcher.Constraint("DistanceX", -1, 1, 5, 2, Q("58 mm")))
sketch6.addConstraint(Sketcher.Constraint("DistanceX", 1, 2, 4, 2, Q("81 mm")))
sketch6.addConstraint(Sketcher.Constraint("DistanceY", 4, 2, 1, 2, Q("21 mm")))
sketch6.addConstraint(Sketcher.Constraint("DistanceY", 0, 2, -1, 1, Q("7.5 mm")))
pad3 = doc.addObject("PartDesign::Pad", "Pad002")
body.addObject(pad3)
pad3.Profile = sketch6
pad3.Length = 15

# Sketch on XY plane
sketch7 = doc.addObject("Sketcher::SketchObject", "Sketch006")
body.addObject(sketch7)
sketch7.AttachmentSupport = (doc.XY_Plane, [""])
sketch7.MapMode = "FlatFace"
sketch7.AttachmentOffset = App.Placement(Vector(0, 0, 17), App.Rotation())
add_polygon(sketch7, [(-58, 8), (-58, -8), (-30, -8), (-30, 8)])  # lines 0-3
sketch7.addConstraint(Sketcher.Constraint("Vertical", 0))
sketch7.addConstraint(Sketcher.Constraint("Horizontal", 1))
sketch7.addConstraint(Sketcher.Constraint("Vertical", 2))
sketch7.addConstraint(Sketcher.Constraint("Horizontal", 3))
sketch7.addConstraint(Sketcher.Constraint("DistanceX", 1, 1, 1, 2, Q("27 mm")))
sketch7.addConstraint(Sketcher.Constraint("DistanceY", 0, 2, 0, 1, Q("15 mm")))
sketch7.addConstraint(Sketcher.Constraint("DistanceX", 0, 2, -1, 1, Q("57.5 mm")))
sketch7.addConstraint(Sketcher.Constraint("DistanceY", 0, 2, -1, 1, Q("7.5 mm")))
pad4 = doc.addObject("PartDesign::Pad", "Pad003")
body.addObject(pad4)
pad4.Profile = sketch7
pad4.Length = 12

# Sketch on XY plane
sketch8 = doc.addObject("Sketcher::SketchObject", "Sketch007")
body.addObject(sketch8)
sketch8.AttachmentSupport = (doc.XY_Plane, [""])
sketch8.MapMode = "FlatFace"
sketch8.AttachmentOffset = App.Placement(Vector(0, 0, 2), App.Rotation())
sketch8.addGeometry(Part.Circle(Vector(29.23, -32.6, 0), Vector(0, 0, 1), 0.3), False)
sketch8.addGeometry(Part.Circle(Vector(31.77, -32.6, 0), Vector(0, 0, 1), 0.3), False)
sketch8.addGeometry(Part.Circle(Vector(30.5, -34.7, 0), Vector(0, 0, 1), 0.3), False)
sketch8.addConstraint(Sketcher.Constraint("Equal", 0, 1))
sketch8.addConstraint(Sketcher.Constraint("Equal", 1, 2))
sketch8.addConstraint(Sketcher.Constraint("Horizontal", 0, 3, 1, 3))
sketch8.addConstraint(Sketcher.Constraint("Diameter", 0, Q("0.6 mm")))
sketch8.addConstraint(Sketcher.Constraint("DistanceY", 0, 3, -1, 1, Q("32.6 mm")))
sketch8.addConstraint(Sketcher.Constraint("DistanceX", -1, 1, 2, 3, Q("30.5 mm")))
sketch8.addConstraint(Sketcher.Constraint("DistanceY", 2, 3, -1, 1, Q("34.7 mm")))
sketch8.addConstraint(Sketcher.Constraint("DistanceX", -1, 1, 0, 3, Q("29.23 mm")))
sketch8.addConstraint(Sketcher.Constraint("DistanceX", -1, 1, 1, 3, Q("31.77 mm")))
pad5 = doc.addObject("PartDesign::Pad", "Pad004")
body.addObject(pad5)
pad5.Profile = sketch8
pad5.Length = 6.5
pad5.Reversed = True

# Sketch on XY plane
sketch9 = doc.addObject("Sketcher::SketchObject", "Sketch008")
body.addObject(sketch9)
sketch9.AttachmentSupport = (doc.XY_Plane, [""])
sketch9.MapMode = "FlatFace"
sketch9.AttachmentOffset = App.Placement(Vector(0, 0, -4.5), App.Rotation())
sketch9.addGeometry(Part.LineSegment(Vector(29.2, -31.1, 0), Vector(31.8, -31.1, 0)), False)
sketch9.addGeometry(Part.ArcOfCircle(Part.Circle(Vector(30.5, -33.5, 0), Vector(0, 0, 1), 2.8), math.radians(119), math.radians(421)), False)
sketch9.addConstraint(Sketcher.Constraint("Coincident", 0, 1, 1, 1))
sketch9.addConstraint(Sketcher.Constraint("Coincident", 1, 2, 0, 2))
sketch9.addConstraint(Sketcher.Constraint("Horizontal", 0))
sketch9.addConstraint(Sketcher.Constraint("Radius", 1, Q("2.75 mm")))
sketch9.addConstraint(Sketcher.Constraint("DistanceX", -1, 1, 1, 3, Q("30.5 mm")))
sketch9.addConstraint(Sketcher.Constraint("DistanceY", 1, 3, -1, 1, Q("33.5 mm")))
sketch9.addConstraint(Sketcher.Constraint("DistanceX", 0, 1, 0, 2, Q("2.681585 mm")))
pad6 = doc.addObject("PartDesign::Pad", "Pad005")
body.addObject(pad6)
pad6.Profile = sketch9
pad6.Length = 0.5
pad6.Reversed = True

# Sketch on XY plane
sketch10 = doc.addObject("Sketcher::SketchObject", "Sketch009")
body.addObject(sketch10)
sketch10.AttachmentSupport = (doc.XY_Plane, [""])
sketch10.MapMode = "FlatFace"
sketch10.AttachmentOffset = App.Placement(Vector(0, 0, -5), App.Rotation())
sketch10.addGeometry(Part.Circle(Vector(30.5, -33.5, 0), Vector(0, 0, 1), 2.5), False)
sketch10.addConstraint(Sketcher.Constraint("Diameter", 0, Q("4.9 mm")))
sketch10.addConstraint(Sketcher.Constraint("DistanceX", -1, 1, 0, 3, Q("30.5 mm")))
sketch10.addConstraint(Sketcher.Constraint("DistanceY", 0, 3, -1, 1, Q("33.5 mm")))
pad7 = doc.addObject("PartDesign::Pad", "Pad006")
body.addObject(pad7)
pad7.Profile = sketch10
pad7.Length = 8.5
pad7.Reversed = True
doc.recompute()

chamfer = doc.addObject("PartDesign::Chamfer", "Chamfer")
body.addObject(chamfer)
chamfer.Base = (pad7, edges_at(pad7, [(30.012, -35.901, -13.5)]))
chamfer.ChamferType = "Two distances"
chamfer.Size = 0.5
chamfer.Size2 = 0.088163

doc.recompute()
